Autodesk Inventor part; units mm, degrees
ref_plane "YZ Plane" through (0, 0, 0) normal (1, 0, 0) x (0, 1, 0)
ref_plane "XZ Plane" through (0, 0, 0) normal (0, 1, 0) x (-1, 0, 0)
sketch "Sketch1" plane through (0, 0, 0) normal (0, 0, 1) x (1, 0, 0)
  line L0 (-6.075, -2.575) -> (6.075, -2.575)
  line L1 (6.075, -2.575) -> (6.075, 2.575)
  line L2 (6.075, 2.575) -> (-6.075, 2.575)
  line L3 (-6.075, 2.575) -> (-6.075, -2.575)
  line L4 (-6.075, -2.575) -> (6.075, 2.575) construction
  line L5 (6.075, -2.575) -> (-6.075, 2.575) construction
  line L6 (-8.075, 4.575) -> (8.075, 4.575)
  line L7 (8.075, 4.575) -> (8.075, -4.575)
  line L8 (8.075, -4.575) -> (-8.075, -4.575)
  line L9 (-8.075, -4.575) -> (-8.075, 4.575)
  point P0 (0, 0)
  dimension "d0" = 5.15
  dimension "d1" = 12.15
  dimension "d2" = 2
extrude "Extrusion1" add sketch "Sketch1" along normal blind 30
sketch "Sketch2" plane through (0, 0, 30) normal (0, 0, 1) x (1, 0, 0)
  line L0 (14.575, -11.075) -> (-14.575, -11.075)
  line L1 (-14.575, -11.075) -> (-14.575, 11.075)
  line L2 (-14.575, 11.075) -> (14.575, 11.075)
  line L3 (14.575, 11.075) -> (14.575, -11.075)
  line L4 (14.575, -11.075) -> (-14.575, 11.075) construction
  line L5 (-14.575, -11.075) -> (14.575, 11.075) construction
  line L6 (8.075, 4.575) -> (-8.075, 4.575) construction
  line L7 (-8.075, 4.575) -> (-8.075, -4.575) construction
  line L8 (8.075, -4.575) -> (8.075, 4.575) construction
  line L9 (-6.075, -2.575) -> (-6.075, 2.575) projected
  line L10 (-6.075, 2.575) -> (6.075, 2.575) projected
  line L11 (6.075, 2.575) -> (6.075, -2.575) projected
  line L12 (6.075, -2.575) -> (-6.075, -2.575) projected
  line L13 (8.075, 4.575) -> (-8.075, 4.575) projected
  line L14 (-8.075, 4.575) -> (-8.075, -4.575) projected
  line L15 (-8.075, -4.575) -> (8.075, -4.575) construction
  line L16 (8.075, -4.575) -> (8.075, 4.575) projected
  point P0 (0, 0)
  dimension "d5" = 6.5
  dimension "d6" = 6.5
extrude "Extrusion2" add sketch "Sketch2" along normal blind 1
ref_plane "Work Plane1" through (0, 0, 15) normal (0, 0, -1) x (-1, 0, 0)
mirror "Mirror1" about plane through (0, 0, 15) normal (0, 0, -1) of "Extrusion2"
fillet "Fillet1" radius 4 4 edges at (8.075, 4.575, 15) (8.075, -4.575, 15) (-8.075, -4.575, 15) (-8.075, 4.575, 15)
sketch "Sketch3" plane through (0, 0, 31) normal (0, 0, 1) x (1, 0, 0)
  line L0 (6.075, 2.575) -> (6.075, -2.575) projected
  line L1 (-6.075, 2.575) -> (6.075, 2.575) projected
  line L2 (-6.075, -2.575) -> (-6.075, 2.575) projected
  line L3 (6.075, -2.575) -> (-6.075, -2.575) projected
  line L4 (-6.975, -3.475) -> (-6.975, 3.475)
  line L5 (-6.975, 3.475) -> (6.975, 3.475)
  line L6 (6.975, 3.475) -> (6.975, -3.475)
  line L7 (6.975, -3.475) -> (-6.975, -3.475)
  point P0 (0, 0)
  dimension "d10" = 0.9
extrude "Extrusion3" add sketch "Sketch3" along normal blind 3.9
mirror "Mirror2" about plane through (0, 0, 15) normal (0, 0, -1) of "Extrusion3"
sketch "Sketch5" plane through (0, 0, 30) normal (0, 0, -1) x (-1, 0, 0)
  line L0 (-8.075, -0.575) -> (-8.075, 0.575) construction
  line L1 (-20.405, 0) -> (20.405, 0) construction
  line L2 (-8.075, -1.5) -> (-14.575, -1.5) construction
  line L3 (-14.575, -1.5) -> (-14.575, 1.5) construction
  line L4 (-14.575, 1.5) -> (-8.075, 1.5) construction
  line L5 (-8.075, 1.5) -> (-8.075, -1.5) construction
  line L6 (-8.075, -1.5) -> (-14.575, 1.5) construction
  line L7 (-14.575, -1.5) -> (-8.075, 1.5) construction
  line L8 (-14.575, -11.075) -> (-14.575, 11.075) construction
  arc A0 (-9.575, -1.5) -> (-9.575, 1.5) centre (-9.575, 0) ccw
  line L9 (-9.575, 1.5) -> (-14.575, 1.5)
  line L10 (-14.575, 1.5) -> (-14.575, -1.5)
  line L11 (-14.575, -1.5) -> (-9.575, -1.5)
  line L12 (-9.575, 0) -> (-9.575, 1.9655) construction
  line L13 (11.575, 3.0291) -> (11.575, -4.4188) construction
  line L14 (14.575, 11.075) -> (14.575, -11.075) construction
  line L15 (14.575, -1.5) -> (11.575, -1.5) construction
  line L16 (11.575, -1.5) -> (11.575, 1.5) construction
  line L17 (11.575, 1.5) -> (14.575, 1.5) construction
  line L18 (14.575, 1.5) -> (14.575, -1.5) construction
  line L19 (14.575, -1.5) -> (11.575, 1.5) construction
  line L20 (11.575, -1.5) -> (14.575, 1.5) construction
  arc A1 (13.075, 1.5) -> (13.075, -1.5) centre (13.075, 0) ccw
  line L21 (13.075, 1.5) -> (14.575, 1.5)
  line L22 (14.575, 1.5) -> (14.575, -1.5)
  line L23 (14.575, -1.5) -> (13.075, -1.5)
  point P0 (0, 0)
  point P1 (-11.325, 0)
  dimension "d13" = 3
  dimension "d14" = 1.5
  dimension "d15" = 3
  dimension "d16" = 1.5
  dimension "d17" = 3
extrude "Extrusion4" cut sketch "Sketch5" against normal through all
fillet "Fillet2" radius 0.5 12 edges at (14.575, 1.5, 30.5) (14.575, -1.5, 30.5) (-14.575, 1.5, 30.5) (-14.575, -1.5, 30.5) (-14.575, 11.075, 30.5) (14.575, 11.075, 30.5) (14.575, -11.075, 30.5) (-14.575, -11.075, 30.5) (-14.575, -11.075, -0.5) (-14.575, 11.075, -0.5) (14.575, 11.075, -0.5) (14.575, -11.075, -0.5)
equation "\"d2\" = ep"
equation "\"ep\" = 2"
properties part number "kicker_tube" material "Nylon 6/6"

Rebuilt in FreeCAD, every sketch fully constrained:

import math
import FreeCAD as App
import Part
import Sketcher
Q = App.Units.Quantity


def edges_at(feature, points):
    """Names of the edges that pass closest to the given points."""
    edges = feature.Shape.Edges
    near = lambda p: min(range(len(edges)), key=lambda i: edges[i].distToShape(Part.Vertex(*p))[0])
    return sorted({f"Edge{near(p) + 1}" for p in points})

doc = App.newDocument("Part")
params = doc.addObject("Spreadsheet::Sheet", "Params")
for row, (alias, value) in enumerate([
    ("sketch1_width", "12.15 mm"),
    ("sketch1_height", "5.15 mm"),
    ("pad1_length", "30 mm"),
    ("sketch2_width", "29.15 mm"),
    ("sketch2_width2", "12.15 mm"),
    ("sketch2_height", "22.15 mm"),
    ("sketch2_height2", "5.15 mm"),
    ("pad2_length", "1 mm"),
    ("fillet_radius", "4 mm"),
    ("sketch3_width", "13.95 mm"),
    ("sketch3_height", "6.95 mm"),
    ("pad3_length", "3.9 mm"),
    ("sketch4_radius", "1.5 mm"),
    ("sketch4_width", "1.5 mm"),
    ("sketch4_width2", "5 mm"),
    ("fillet2_radius", "0.5 mm"),
], start=1):
    params.set(f"A{row}", alias)
    params.set(f"B{row}", "=" + value)
    params.setAlias(f"B{row}", alias)

body = doc.addObject("PartDesign::Body", "Body")

# Sketch on XY plane
sketch1 = doc.addObject("Sketcher::SketchObject", "Sketch")
body.addObject(sketch1)
sketch1.AttachmentSupport = (doc.XY_Plane, [""])
sketch1.MapMode = "FlatFace"
sketch1.addGeometry(Part.LineSegment(App.Vector(8, 5, 0), App.Vector(-8, 5, 0)), False)
sketch1.addGeometry(Part.LineSegment(App.Vector(-8, 5, 0), App.Vector(-8, -5, 0)), False)
sketch1.addGeometry(Part.LineSegment(App.Vector(-8, -5, 0), App.Vector(8, -5, 0)), False)
sketch1.addGeometry(Part.LineSegment(App.Vector(8, -5, 0), App.Vector(8, 5, 0)), False)
sketch1.addGeometry(Part.LineSegment(App.Vector(6, -3, 0), App.Vector(-6, -3, 0)), False)
sketch1.addGeometry(Part.LineSegment(App.Vector(-6, -3, 0), App.Vector(-6, 3, 0)), False)
sketch1.addGeometry(Part.LineSegment(App.Vector(-6, 3, 0), App.Vector(6, 3, 0)), False)
sketch1.addGeometry(Part.LineSegment(App.Vector(6, 3, 0), App.Vector(6, -3, 0)), False)
sketch1.addConstraint(Sketcher.Constraint("Coincident", 0, 2, 1, 1))
sketch1.addConstraint(Sketcher.Constraint("Coincident", 1, 2, 2, 1))
sketch1.addConstraint(Sketcher.Constraint("Coincident", 2, 2, 3, 1))
sketch1.addConstraint(Sketcher.Constraint("Coincident", 3, 2, 0, 1))
sketch1.addConstraint(Sketcher.Constraint("Coincident", 4, 2, 5, 1))
sketch1.addConstraint(Sketcher.Constraint("Coincident", 5, 2, 6, 1))
sketch1.addConstraint(Sketcher.Constraint("Coincident", 6, 2, 7, 1))
sketch1.addConstraint(Sketcher.Constraint("Coincident", 7, 2, 4, 1))
sketch1.addConstraint(Sketcher.Constraint("Horizontal", 0))
sketch1.addConstraint(Sketcher.Constraint("Vertical", 1))
sketch1.addConstraint(Sketcher.Constraint("Horizontal", 2))
sketch1.addConstraint(Sketcher.Constraint("Vertical", 3))
sketch1.addConstraint(Sketcher.Constraint("Horizontal", 4))
sketch1.addConstraint(Sketcher.Constraint("Vertical", 5))
sketch1.addConstraint(Sketcher.Constraint("Horizontal", 6))
sketch1.addConstraint(Sketcher.Constraint("Vertical", 7))
sketch1.addConstraint(Sketcher.Constraint("Symmetric", 0, 2, 2, 2, -1, 1))
sketch1.addConstraint(Sketcher.Constraint("Symmetric", 4, 2, 6, 2, -1, 1))
sketch1.addConstraint(Sketcher.Constraint("DistanceX", 1, 2, 4, 2, Q("2 mm")))
sketch1.addConstraint(Sketcher.Constraint("DistanceY", 1, 2, 4, 2, Q("2 mm")))
sketch1.addConstraint(Sketcher.Constraint("DistanceX", 4, 2, 4, 1, Q("12.15 mm")))
sketch1.addConstraint(Sketcher.Constraint("DistanceY", 5, 1, 5, 2, Q("5.15 mm")))
sketch1.setExpression("Constraints[20]", "Params.sketch1_width")
sketch1.setExpression("Constraints[21]", "Params.sketch1_height")
pad1 = doc.addObject("PartDesign::Pad", "Pad")
body.addObject(pad1)
pad1.Profile = sketch1
pad1.setExpression("Length", "Params.pad1_length")

# Sketch on XY plane
sketch2 = doc.addObject("Sketcher::SketchObject", "Sketch001")
body.addObject(sketch2)
sketch2.AttachmentSupport = (doc.XY_Plane, [""])
sketch2.MapMode = "FlatFace"
sketch2.AttachmentOffset = App.Placement(App.Vector(0, 0, 30), App.Rotation())
sketch2.addGeometry(Part.LineSegment(App.Vector(-15, -11, 0), App.Vector(15, -11, 0)), False)
sketch2.addGeometry(Part.LineSegment(App.Vector(15, -11, 0), App.Vector(15, 11, 0)), False)
sketch2.addGeometry(Part.LineSegment(App.Vector(15, 11, 0), App.Vector(-15, 11, 0)), False)
sketch2.addGeometry(Part.LineSegment(App.Vector(-15, 11, 0), App.Vector(-15, -11, 0)), False)
sketch2.addGeometry(Part.LineSegment(App.Vector(6, -3, 0), App.Vector(-6, -3, 0)), False)
sketch2.addGeometry(Part.LineSegment(App.Vector(-6, -3, 0), App.Vector(-6, 3, 0)), False)
sketch2.addGeometry(Part.LineSegment(App.Vector(-6, 3, 0), App.Vector(6, 3, 0)), False)
sketch2.addGeometry(Part.LineSegment(App.Vector(6, 3, 0), App.Vector(6, -3, 0)), False)
sketch2.addConstraint(Sketcher.Constraint("Coincident", 0, 2, 1, 1))
sketch2.addConstraint(Sketcher.Constraint("Coincident", 1, 2, 2, 1))
sketch2.addConstraint(Sketcher.Constraint("Coincident", 2, 2, 3, 1))
sketch2.addConstraint(Sketcher.Constraint("Coincident", 3, 2, 0, 1))
sketch2.addConstraint(Sketcher.Constraint("Coincident", 4, 2, 5, 1))
sketch2.addConstraint(Sketcher.Constraint("Coincident", 5, 2, 6, 1))
sketch2.addConstraint(Sketcher.Constraint("Coincident", 6, 2, 7, 1))
sketch2.addConstraint(Sketcher.Constraint("Coincident", 7, 2, 4, 1))
sketch2.addConstraint(Sketcher.Constraint("Horizontal", 0))
sketch2.addConstraint(Sketcher.Constraint("Vertical", 1))
sketch2.addConstraint(Sketcher.Constraint("Horizontal", 2))
sketch2.addConstraint(Sketcher.Constraint("Vertical", 3))
sketch2.addConstraint(Sketcher.Constraint("Horizontal", 4))
sketch2.addConstraint(Sketcher.Constraint("Vertical", 5))
sketch2.addConstraint(Sketcher.Constraint("Horizontal", 6))
sketch2.addConstraint(Sketcher.Constraint("Vertical", 7))
sketch2.addConstraint(Sketcher.Constraint("Symmetric", 0, 2, 2, 2, -1, 1))
sketch2.addConstraint(Sketcher.Constraint("Symmetric", 4, 2, 6, 2, -1, 1))
sketch2.addConstraint(Sketcher.Constraint("DistanceX", 0, 1, 0, 2, Q("29.15 mm")))
sketch2.addConstraint(Sketcher.Constraint("DistanceX", 4, 2, 4, 1, Q("12.15 mm")))
sketch2.addConstraint(Sketcher.Constraint("DistanceY", 1, 1, 1, 2, Q("22.15 mm")))
sketch2.addConstraint(Sketcher.Constraint("DistanceY", 5, 1, 5, 2, Q("5.15 mm")))
sketch2.setExpression("Constraints[18]", "Params.sketch2_width")
sketch2.setExpression("Constraints[19]", "Params.sketch2_width2")
sketch2.setExpression("Constraints[20]", "Params.sketch2_height")
sketch2.setExpression("Constraints[21]", "Params.sketch2_height2")
pad2 = doc.addObject("PartDesign::Pad", "Pad001")
body.addObject(pad2)
pad2.Profile = sketch2
pad2.setExpression("Length", "Params.pad2_length")
doc.recompute()

datumplane = doc.addObject("PartDesign::Plane", "DatumPlane")
body.addObject(datumplane)
datumplane.AttachmentSupport = (doc.XY_Plane, [""])
datumplane.MapMode = "FlatFace"
datumplane.AttachmentOffset = App.Placement(App.Vector(0, 0, 15), App.Rotation())
mirrored = doc.addObject("PartDesign::Mirrored", "Mirrored")
body.addObject(mirrored)
mirrored.Originals = [pad2]
mirrored.MirrorPlane = (datumplane, [""])
body.Tip = mirrored
doc.recompute()

fillet = doc.addObject("PartDesign::Fillet", "Fillet")
body.addObject(fillet)
fillet.Base = (mirrored, edges_at(mirrored, [
    (8.075, 4.575, 15),
    (8.075, -4.575, 15),
    (-8.075, -4.575, 15),
    (-8.075, 4.575, 15),
]))
fillet.setExpression("Radius", "Params.fillet_radius")

# Sketch on XY plane
sketch3 = doc.addObject("Sketcher::SketchObject", "Sketch002")
body.addObject(sketch3)
sketch3.AttachmentSupport = (doc.XY_Plane, [""])
sketch3.MapMode = "FlatFace"
sketch3.AttachmentOffset = App.Placement(App.Vector(0, 0, 31), App.Rotation())
sketch3.addGeometry(Part.LineSegment(App.Vector(-7, 3, 0), App.Vector(-7, -3, 0)), False)
sketch3.addGeometry(Part.LineSegment(App.Vector(-7, -3, 0), App.Vector(7, -3, 0)), False)
sketch3.addGeometry(Part.LineSegment(App.Vector(7, -3, 0), App.Vector(7, 3, 0)), False)
sketch3.addGeometry(Part.LineSegment(App.Vector(7, 3, 0), App.Vector(-7, 3, 0)), False)
sketch3.addGeometry(Part.LineSegment(App.Vector(-6, 3, 0), App.Vector(6, 3, 0)), False)
sketch3.addGeometry(Part.LineSegment(App.Vector(6, 3, 0), App.Vector(6, -3, 0)), False)
sketch3.addGeometry(Part.LineSegment(App.Vector(6, -3, 0), App.Vector(-6, -3, 0)), False)
sketch3.addGeometry(Part.LineSegment(App.Vector(-6, -3, 0), App.Vector(-6, 3, 0)), False)
sketch3.addConstraint(Sketcher.Constraint("Coincident", 0, 2, 1, 1))
sketch3.addConstraint(Sketcher.Constraint("Coincident", 1, 2, 2, 1))
sketch3.addConstraint(Sketcher.Constraint("Coincident", 2, 2, 3, 1))
sketch3.addConstraint(Sketcher.Constraint("Coincident", 3, 2, 0, 1))
sketch3.addConstraint(Sketcher.Constraint("Coincident", 4, 2, 5, 1))
sketch3.addConstraint(Sketcher.Constraint("Coincident", 5, 2, 6, 1))
sketch3.addConstraint(Sketcher.Constraint("Coincident", 6, 2, 7, 1))
sketch3.addConstraint(Sketcher.Constraint("Coincident", 7, 2, 4, 1))
sketch3.addConstraint(Sketcher.Constraint("Vertical", 0))
sketch3.addConstraint(Sketcher.Constraint("Horizontal", 1))
sketch3.addConstraint(Sketcher.Constraint("Vertical", 2))
sketch3.addConstraint(Sketcher.Constraint("Horizontal", 3))
sketch3.addConstraint(Sketcher.Constraint("Horizontal", 4))
sketch3.addConstraint(Sketcher.Constraint("Vertical", 5))
sketch3.addConstraint(Sketcher.Constraint("Horizontal", 6))
sketch3.addConstraint(Sketcher.Constraint("Vertical", 7))
sketch3.addConstraint(Sketcher.Constraint("Symmetric", 0, 2, 2, 2, -1, 1))
sketch3.addConstraint(Sketcher.Constraint("Symmetric", 4, 2, 6, 2, -1, 1))
sketch3.addConstraint(Sketcher.Constraint("DistanceX", 4, 2, 2, 2, Q("0.9 mm")))
sketch3.addConstraint(Sketcher.Constraint("DistanceY", 4, 2, 2, 2, Q("0.9 mm")))
sketch3.addConstraint(Sketcher.Constraint("DistanceX", 1, 1, 1, 2, Q("13.95 mm")))
sketch3.addConstraint(Sketcher.Constraint("DistanceY", 0, 2, 0, 1, Q("6.95 mm")))
sketch3.setExpression("Constraints[20]", "Params.sketch3_width")
sketch3.setExpression("Constraints[21]", "Params.sketch3_height")
pad3 = doc.addObject("PartDesign::Pad", "Pad002")
body.addObject(pad3)
pad3.Profile = sketch3
pad3.setExpression("Length", "Params.pad3_length")
doc.recompute()

datumplane2 = doc.addObject("PartDesign::Plane", "DatumPlane001")
body.addObject(datumplane2)
datumplane2.AttachmentSupport = (doc.XY_Plane, [""])
datumplane2.MapMode = "FlatFace"
datumplane2.AttachmentOffset = App.Placement(App.Vector(0, 0, 15), App.Rotation())
mirrored2 = doc.addObject("PartDesign::Mirrored", "Mirrored001")
body.addObject(mirrored2)
mirrored2.Originals = [pad3]
mirrored2.MirrorPlane = (datumplane2, [""])
body.Tip = mirrored2

# Sketch on XY plane
sketch4 = doc.addObject("Sketcher::SketchObject", "Sketch003")
body.addObject(sketch4)
sketch4.AttachmentSupport = (doc.XY_Plane, [""])
sketch4.MapMode = "FlatFace"
sketch4.AttachmentOffset = App.Placement(App.Vector(0, 0, 30), App.Rotation())
sketch4.addGeometry(Part.LineSegment(App.Vector(14.6, -1.5, 0), App.Vector(9.6, -1.5, 0)), False)
sketch4.addGeometry(Part.ArcOfCircle(Part.Circle(App.Vector(9.6, 0, 0), App.Vector(0, 0, 1), 1.5), math.radians(90), math.radians(270)), False)
sketch4.addGeometry(Part.LineSegment(App.Vector(9.6, 1.5, 0), App.Vector(14.6, 1.5, 0)), False)
sketch4.addGeometry(Part.LineSegment(App.Vector(14.6, 1.5, 0), App.Vector(14.6, -1.5, 0)), False)
sketch4.addGeometry(Part.LineSegment(App.Vector(-14.6, 1.5, 0), App.Vector(-13.1, 1.5, 0)), False)
sketch4.addGeometry(Part.ArcOfCircle(Part.Circle(App.Vector(-13.1, 0, 0), App.Vector(0, 0, 1), 1.5), math.radians(-90), math.radians(90)), False)
sketch4.addGeometry(Part.LineSegment(App.Vector(-13.1, -1.5, 0), App.Vector(-14.6, -1.5, 0)), False)
sketch4.addGeometry(Part.LineSegment(App.Vector(-14.6, -1.5, 0), App.Vector(-14.6, 1.5, 0)), False)
sketch4.addConstraint(Sketcher.Constraint("Tangent", 0, 2, 1, 2))
sketch4.addConstraint(Sketcher.Constraint("Tangent", 1, 1, 2, 1))
sketch4.addConstraint(Sketcher.Constraint("Coincident", 2, 2, 3, 1))
sketch4.addConstraint(Sketcher.Constraint("Coincident", 3, 2, 0, 1))
sketch4.addConstraint(Sketcher.Constraint("Tangent", 4, 2, 5, 2))
sketch4.addConstraint(Sketcher.Constraint("Tangent", 5, 1, 6, 1))
sketch4.addConstraint(Sketcher.Constraint("Coincident", 6, 2, 7, 1))
sketch4.addConstraint(Sketcher.Constraint("Coincident", 7, 2, 4, 1))
sketch4.addConstraint(Sketcher.Constraint("Horizontal", 0))
sketch4.addConstraint(Sketcher.Constraint("Horizontal", 2))
sketch4.addConstraint(Sketcher.Constraint("Vertical", 3))
sketch4.addConstraint(Sketcher.Constraint("Horizontal", 4))
sketch4.addConstraint(Sketcher.Constraint("Horizontal", 6))
sketch4.addConstraint(Sketcher.Constraint("Vertical", 7))
sketch4.addConstraint(Sketcher.Constraint("Equal", 1, 5))
sketch4.addConstraint(Sketcher.Constraint("Symmetric", 2, 2, 6, 2, -1, 1))
sketch4.addConstraint(Sketcher.Constraint("PointOnObject", 1, 3, -1))
sketch4.addConstraint(Sketcher.Constraint("Radius", 1, Q("1.5 mm")))
sketch4.addConstraint(Sketcher.Constraint("DistanceX", 4, 1, 4, 2, Q("1.5 mm")))
sketch4.addConstraint(Sketcher.Constraint("DistanceX", 0, 2, 0, 1, Q("5 mm")))
sketch4.addConstraint(Sketcher.Constraint("DistanceX", 5, 3, 1, 3, Q("22.65 mm")))
sketch4.setExpression("Constraints[17]", "Params.sketch4_radius")
sketch4.setExpression("Constraints[18]", "Params.sketch4_width")
sketch4.setExpression("Constraints[19]", "Params.sketch4_width2")
pocket1 = doc.addObject("PartDesign::Pocket", "Pocket")
body.addObject(pocket1)
pocket1.Profile = sketch4
pocket1.Type = "ThroughAll"
pocket1.Reversed = True
doc.recompute()

fillet2 = doc.addObject("PartDesign::Fillet", "Fillet001")
body.addObject(fillet2)
fillet2.Base = (pocket1, edges_at(pocket1, [
    (14.575, 1.5, 30.5),
    (14.575, -1.5, 30.5),
    (-14.575, 1.5, 30.5),
    (-14.575, -1.5, 30.5),
    (-14.575, 11.075, 30.5),
    (14.575, 11.075, 30.5),
    (14.575, -11.075, 30.5),
    (-14.575, -11.075, 30.5),
    (-14.575, -11.075, -0.5),
    (-14.575, 11.075, -0.5),
    (14.575, 11.075, -0.5),
    (14.575, -11.075, -0.5),
]))
fillet2.setExpression("Radius", "Params.fillet2_radius")

doc.recompute()
